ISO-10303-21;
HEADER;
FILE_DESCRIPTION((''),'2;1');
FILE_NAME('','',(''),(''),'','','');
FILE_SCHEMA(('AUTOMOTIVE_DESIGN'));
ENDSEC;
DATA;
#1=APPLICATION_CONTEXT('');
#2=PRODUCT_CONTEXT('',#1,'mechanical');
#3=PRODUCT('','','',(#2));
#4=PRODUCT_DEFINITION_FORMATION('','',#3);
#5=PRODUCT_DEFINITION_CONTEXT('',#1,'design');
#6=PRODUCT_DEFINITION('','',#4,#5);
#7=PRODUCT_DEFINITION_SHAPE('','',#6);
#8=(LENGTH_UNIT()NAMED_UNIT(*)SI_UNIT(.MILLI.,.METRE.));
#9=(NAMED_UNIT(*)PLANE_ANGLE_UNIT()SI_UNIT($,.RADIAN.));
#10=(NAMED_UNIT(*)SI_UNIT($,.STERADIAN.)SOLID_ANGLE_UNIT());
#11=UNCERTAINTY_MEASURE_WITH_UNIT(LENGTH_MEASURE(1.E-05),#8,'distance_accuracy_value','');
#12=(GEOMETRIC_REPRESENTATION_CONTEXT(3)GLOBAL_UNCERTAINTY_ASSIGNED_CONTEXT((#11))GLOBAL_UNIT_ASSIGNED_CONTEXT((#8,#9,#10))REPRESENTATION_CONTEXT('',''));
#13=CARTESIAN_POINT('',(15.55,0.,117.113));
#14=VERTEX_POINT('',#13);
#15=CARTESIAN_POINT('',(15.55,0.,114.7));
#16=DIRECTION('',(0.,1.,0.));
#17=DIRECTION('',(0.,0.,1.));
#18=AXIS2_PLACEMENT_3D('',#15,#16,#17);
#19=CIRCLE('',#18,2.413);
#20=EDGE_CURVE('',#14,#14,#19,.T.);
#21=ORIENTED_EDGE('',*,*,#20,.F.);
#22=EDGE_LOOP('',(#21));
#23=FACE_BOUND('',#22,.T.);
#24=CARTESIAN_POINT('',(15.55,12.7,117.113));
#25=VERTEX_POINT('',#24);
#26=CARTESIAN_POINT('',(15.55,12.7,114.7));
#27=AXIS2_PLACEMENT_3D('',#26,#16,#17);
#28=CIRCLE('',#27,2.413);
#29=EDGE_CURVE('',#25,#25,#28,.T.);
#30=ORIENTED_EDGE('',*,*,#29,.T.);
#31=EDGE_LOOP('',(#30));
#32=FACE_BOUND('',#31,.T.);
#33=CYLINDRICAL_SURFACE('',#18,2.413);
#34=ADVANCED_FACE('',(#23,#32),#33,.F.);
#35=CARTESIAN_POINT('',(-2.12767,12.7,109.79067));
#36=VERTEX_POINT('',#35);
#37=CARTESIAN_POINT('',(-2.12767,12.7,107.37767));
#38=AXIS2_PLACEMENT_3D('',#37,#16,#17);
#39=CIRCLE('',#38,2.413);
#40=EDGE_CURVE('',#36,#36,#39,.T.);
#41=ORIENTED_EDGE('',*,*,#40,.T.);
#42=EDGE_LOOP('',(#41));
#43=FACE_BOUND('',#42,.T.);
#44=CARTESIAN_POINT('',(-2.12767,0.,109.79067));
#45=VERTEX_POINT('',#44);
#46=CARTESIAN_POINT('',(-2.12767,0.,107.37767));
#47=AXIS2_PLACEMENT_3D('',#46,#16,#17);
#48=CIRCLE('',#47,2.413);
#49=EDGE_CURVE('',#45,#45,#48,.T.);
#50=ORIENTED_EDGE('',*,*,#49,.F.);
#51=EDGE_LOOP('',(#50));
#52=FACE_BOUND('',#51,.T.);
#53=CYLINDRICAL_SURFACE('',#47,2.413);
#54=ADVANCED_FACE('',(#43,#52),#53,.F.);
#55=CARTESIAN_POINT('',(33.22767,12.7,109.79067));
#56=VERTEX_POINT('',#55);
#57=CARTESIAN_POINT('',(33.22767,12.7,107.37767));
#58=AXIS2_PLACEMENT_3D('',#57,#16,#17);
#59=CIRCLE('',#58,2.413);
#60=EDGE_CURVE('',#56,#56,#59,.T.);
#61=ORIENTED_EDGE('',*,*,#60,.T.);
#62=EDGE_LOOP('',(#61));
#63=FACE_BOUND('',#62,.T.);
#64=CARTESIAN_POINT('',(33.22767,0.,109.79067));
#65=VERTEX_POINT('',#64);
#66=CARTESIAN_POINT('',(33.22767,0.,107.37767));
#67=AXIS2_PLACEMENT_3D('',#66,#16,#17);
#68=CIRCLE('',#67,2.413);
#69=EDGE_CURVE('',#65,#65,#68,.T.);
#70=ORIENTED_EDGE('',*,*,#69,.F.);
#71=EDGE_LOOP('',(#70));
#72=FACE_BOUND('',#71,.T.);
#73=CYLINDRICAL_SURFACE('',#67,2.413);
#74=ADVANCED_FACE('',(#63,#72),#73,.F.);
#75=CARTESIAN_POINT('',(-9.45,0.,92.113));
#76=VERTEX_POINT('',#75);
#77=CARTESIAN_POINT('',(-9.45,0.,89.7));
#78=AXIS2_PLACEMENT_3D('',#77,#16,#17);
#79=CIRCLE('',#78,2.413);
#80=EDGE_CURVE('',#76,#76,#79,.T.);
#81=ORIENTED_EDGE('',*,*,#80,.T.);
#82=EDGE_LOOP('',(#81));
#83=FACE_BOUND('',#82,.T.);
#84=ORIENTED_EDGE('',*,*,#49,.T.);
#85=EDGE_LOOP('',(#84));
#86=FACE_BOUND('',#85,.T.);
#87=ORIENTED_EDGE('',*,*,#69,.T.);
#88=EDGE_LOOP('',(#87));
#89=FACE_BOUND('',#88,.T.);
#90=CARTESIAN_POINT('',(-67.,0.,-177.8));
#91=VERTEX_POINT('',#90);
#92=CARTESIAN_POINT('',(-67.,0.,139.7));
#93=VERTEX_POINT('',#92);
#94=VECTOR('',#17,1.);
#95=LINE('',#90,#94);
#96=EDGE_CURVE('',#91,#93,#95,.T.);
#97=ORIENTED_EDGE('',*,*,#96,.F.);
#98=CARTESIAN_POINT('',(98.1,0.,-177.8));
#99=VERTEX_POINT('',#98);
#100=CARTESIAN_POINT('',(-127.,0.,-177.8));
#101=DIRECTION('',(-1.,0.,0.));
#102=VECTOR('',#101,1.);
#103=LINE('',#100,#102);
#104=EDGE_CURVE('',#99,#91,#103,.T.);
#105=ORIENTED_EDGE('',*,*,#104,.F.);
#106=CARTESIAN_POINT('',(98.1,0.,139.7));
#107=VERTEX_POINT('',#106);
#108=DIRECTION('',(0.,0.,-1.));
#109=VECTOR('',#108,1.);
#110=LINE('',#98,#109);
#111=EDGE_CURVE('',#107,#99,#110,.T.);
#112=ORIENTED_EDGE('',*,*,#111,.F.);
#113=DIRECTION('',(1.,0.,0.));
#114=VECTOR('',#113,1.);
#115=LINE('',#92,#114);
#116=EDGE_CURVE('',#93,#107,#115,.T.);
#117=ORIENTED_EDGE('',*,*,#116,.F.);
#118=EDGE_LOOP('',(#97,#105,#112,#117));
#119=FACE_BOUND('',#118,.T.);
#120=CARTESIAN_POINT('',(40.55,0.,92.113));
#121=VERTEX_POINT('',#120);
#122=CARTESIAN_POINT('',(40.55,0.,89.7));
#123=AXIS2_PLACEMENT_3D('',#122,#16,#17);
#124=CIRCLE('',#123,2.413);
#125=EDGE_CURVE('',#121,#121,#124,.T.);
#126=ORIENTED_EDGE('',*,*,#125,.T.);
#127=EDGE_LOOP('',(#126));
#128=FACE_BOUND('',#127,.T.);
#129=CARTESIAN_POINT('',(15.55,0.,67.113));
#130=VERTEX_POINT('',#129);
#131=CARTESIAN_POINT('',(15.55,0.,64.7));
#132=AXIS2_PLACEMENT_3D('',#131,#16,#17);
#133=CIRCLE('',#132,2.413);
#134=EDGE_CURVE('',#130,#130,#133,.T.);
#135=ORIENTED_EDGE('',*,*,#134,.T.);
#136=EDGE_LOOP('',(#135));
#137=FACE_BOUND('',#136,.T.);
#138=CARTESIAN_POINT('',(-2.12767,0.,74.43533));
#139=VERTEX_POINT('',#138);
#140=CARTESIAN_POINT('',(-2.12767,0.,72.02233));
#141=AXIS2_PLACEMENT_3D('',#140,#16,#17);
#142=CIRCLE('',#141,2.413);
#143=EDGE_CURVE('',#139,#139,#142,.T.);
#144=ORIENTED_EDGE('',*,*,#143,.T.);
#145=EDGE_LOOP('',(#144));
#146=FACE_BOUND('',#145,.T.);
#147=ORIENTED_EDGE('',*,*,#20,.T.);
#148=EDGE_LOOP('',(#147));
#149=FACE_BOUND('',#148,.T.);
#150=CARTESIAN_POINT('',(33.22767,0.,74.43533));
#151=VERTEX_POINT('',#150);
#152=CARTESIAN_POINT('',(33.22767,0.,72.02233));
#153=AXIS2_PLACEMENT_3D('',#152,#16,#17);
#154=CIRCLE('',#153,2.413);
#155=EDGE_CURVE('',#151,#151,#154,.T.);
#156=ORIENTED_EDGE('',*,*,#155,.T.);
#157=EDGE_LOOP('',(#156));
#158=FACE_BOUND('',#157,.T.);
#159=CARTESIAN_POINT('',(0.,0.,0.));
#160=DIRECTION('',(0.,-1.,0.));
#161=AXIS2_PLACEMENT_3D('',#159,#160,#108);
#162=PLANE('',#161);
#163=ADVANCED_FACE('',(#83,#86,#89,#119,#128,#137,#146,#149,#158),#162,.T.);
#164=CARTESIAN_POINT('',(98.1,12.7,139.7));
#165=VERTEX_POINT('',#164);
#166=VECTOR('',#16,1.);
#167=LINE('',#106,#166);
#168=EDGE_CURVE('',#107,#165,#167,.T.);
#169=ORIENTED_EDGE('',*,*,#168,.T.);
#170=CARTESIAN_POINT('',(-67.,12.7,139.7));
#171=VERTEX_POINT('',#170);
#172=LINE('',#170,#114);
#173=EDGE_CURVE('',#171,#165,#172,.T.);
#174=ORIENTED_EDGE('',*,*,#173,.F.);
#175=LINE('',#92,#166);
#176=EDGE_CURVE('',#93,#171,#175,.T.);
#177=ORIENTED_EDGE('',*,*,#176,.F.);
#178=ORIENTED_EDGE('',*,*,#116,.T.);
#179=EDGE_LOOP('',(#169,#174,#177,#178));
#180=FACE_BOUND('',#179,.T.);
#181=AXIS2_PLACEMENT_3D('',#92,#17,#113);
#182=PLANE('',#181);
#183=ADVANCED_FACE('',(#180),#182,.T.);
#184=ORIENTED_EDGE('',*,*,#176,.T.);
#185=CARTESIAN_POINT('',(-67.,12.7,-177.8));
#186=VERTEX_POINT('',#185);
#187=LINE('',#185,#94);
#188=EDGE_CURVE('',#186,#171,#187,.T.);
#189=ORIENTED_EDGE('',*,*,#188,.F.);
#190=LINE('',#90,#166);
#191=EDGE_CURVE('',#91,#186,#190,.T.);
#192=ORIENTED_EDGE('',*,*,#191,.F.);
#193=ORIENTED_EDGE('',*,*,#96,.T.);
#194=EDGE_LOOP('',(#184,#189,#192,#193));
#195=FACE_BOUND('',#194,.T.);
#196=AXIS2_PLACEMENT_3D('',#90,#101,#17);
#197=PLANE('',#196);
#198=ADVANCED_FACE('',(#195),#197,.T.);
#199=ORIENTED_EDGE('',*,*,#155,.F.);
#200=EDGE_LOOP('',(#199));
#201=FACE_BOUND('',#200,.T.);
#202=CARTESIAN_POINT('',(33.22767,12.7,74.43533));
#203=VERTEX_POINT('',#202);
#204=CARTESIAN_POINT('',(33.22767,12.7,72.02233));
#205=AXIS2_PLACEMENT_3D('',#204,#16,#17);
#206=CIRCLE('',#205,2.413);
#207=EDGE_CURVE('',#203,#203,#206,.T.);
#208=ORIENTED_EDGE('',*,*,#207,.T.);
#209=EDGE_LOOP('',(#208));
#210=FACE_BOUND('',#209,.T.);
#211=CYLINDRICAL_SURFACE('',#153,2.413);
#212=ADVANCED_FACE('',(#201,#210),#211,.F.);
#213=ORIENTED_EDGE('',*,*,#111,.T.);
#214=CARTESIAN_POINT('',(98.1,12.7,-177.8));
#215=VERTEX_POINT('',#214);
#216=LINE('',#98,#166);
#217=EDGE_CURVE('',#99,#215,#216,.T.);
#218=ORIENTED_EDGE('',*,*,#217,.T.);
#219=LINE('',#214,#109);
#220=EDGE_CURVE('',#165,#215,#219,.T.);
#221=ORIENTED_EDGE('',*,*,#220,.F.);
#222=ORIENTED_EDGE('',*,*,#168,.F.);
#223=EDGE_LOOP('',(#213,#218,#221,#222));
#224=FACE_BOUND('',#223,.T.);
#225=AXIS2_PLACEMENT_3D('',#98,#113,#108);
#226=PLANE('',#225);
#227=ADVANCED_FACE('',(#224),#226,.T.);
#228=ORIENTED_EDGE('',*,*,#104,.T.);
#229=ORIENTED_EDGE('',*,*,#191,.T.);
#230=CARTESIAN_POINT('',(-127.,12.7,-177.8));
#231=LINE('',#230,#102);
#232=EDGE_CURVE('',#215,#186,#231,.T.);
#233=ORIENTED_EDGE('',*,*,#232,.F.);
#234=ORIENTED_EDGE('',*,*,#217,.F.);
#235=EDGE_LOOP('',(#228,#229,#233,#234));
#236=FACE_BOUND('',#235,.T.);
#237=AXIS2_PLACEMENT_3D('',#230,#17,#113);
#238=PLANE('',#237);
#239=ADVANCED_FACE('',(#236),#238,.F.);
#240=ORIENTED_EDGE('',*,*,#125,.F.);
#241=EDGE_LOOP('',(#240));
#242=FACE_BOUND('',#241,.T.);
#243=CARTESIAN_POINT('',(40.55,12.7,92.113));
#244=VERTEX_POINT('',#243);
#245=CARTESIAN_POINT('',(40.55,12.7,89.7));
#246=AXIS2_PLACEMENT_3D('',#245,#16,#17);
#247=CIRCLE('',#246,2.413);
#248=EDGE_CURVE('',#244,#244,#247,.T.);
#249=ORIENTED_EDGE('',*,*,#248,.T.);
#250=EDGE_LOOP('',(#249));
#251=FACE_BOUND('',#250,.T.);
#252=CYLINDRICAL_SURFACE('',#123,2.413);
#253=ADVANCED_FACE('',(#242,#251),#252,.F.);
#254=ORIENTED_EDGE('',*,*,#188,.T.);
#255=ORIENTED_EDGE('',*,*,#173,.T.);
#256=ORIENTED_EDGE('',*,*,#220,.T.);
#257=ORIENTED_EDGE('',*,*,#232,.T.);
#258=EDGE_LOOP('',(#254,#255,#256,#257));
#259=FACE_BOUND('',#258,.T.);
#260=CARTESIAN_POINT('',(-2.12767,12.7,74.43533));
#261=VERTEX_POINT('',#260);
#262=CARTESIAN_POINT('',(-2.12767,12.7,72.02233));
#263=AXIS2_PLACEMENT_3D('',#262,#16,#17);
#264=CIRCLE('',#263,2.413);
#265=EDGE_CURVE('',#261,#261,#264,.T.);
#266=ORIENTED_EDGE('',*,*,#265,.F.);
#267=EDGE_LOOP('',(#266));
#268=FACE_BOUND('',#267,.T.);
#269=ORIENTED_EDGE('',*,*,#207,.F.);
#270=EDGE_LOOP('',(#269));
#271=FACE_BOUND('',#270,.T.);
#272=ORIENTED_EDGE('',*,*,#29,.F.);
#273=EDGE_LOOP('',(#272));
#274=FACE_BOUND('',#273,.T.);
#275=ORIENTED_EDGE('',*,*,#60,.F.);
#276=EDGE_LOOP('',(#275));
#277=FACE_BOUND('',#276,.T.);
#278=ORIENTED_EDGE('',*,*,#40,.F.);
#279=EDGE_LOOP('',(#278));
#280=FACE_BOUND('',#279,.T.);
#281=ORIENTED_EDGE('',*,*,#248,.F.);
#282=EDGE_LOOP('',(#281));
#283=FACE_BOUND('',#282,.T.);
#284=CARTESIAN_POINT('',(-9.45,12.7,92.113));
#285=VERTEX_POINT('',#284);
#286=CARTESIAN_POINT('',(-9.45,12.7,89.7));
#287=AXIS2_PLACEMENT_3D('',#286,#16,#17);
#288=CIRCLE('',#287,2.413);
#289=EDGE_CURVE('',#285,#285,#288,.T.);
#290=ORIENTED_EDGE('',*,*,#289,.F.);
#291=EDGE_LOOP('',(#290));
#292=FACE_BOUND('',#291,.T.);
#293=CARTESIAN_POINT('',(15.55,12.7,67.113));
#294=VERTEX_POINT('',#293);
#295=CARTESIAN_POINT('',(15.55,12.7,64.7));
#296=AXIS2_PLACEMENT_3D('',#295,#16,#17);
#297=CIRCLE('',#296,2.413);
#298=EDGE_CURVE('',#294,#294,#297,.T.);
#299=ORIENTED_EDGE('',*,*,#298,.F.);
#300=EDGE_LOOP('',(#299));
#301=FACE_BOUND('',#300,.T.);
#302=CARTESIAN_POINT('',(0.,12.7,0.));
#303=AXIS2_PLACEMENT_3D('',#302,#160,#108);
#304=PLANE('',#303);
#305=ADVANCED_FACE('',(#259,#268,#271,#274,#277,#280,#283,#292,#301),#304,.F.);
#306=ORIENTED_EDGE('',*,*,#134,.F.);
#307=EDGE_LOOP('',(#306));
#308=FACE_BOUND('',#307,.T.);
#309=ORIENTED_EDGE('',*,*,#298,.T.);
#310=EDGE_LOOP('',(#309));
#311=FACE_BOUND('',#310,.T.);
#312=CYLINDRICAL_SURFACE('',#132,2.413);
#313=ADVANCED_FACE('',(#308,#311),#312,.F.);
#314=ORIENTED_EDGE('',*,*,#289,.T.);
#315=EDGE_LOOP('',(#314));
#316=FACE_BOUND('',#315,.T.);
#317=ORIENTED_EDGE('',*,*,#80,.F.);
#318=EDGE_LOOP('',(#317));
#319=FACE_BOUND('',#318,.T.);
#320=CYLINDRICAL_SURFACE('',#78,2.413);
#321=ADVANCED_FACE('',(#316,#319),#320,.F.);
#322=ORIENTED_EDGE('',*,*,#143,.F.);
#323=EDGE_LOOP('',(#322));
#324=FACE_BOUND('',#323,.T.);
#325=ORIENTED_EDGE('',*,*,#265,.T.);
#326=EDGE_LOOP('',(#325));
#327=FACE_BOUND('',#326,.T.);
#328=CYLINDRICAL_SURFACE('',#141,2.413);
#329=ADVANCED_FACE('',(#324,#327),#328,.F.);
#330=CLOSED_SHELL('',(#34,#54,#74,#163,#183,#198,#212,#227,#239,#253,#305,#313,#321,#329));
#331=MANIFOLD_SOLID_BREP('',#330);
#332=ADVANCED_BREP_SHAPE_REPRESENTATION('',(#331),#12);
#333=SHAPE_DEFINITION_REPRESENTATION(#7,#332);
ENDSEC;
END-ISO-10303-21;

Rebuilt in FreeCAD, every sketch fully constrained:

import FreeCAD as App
import Part
import Sketcher
from FreeCAD import Vector
Q = App.Units.Quantity


def add_polygon(sketch, points):
    """Adds a closed chain of lines whose ends are joined by coincident constraints."""
    first, n = sketch.GeometryCount, len(points)
    for a, b in zip(points, points[1:] + points[:1]):
        sketch.addGeometry(Part.LineSegment(App.Vector(*a, 0), App.Vector(*b, 0)), False)
    for i in range(n):
        sketch.addConstraint(Sketcher.Constraint("Coincident", first + i, 2, first + (i + 1) % n, 1))

doc = App.newDocument("Part")
params = doc.addObject("Spreadsheet::Sheet", "Params")
for row, (alias, value) in enumerate([
    ("sketch1_width", "10 in"),
    ("sketch1_height", "14 in"),
    ("pad1_length", "0.5 in"),
    ("sketch2_width", "6.5 in"),
    ("sketch2_height", "12.5 in"),
    ("sketch3_diameter", "0.19 in"),
], start=1):
    params.set(f"A{row}", alias)
    params.set(f"B{row}", "=" + value)
    params.setAlias(f"B{row}", alias)

body = doc.addObject("PartDesign::Body", "Body")

# Sketch on XZ plane
sketch1 = body.newObject("Sketcher::SketchObject", "Sketch")
sketch1.AttachmentSupport = (doc.getObject("XZ_Plane"), [""])
sketch1.MapMode = "FlatFace"
add_polygon(sketch1, [(-127, -177.8), (-127, 177.8), (127, 177.8), (127, -177.8)])  # lines 0-3
sketch1.addConstraint([
    Sketcher.Constraint("Vertical", 0),
    Sketcher.Constraint("Horizontal", 1),
    Sketcher.Constraint("Vertical", 2),
    Sketcher.Constraint("Horizontal", 3),
    Sketcher.Constraint("Symmetric", 0, 2, 2, 2, -1, 1),
    Sketcher.Constraint("DistanceX", 1, 1, 1, 2, Q("10 in")),
    Sketcher.Constraint("DistanceY", 0, 1, 0, 2, Q("14 in")),
])
sketch1.setExpression("Constraints[9]", "Params.sketch1_width")
sketch1.setExpression("Constraints[10]", "Params.sketch1_height")
pad1 = body.newObject("PartDesign::Pad", "Pad")
pad1.Profile = sketch1
pad1.setExpression("Length", "Params.pad1_length")
pad1.Reversed = True

# Sketch on XZ plane
sketch2 = body.newObject("Sketcher::SketchObject", "Sketch001")
sketch2.AttachmentSupport = (doc.getObject("XZ_Plane"), [""])
sketch2.MapMode = "FlatFace"
sketch2.AttachmentOffset = App.Placement(Vector(0, 0, -0.5 * 25.4), App.Rotation())
add_polygon(sketch2, [(-171.718, -222.518), (-171.718, 222.518), (171.718, 222.518), (171.718, -222.518)])  # lines 0-3
add_polygon(sketch2, [(98.1, 139.7), (-67, 139.7), (-67, -177.8), (98.1, -177.8)])  # lines 4-7
sketch2.addConstraint([
    Sketcher.Constraint("Vertical", 0),
    Sketcher.Constraint("Horizontal", 1),
    Sketcher.Constraint("Vertical", 2),
    Sketcher.Constraint("Horizontal", 3),
    Sketcher.Constraint("Horizontal", 4),
    Sketcher.Constraint("Vertical", 5),
    Sketcher.Constraint("Horizontal", 6),
    Sketcher.Constraint("Vertical", 7),
    Sketcher.Constraint("Symmetric", 0, 2, 2, 2, -1, 1),
    Sketcher.Constraint("DistanceX", 4, 2, 4, 1, Q("6.5 in")),
    Sketcher.Constraint("DistanceY", 5, 2, 5, 1, Q("12.5 in")),
    Sketcher.Constraint("DistanceY", 5, 2, -1, 1, Q("7 in")),
    Sketcher.Constraint("DistanceX", 1, 1, 1, 2, 343.436),
    Sketcher.Constraint("DistanceY", 0, 1, 0, 2, 445.036),
    Sketcher.Constraint("DistanceX", 4, 2, -1, 1, 67.0),
])
sketch2.setExpression("Constraints[17]", "Params.sketch2_width")
sketch2.setExpression("Constraints[18]", "Params.sketch2_height")
pocket1 = body.newObject("PartDesign::Pocket", "Pocket")
pocket1.Profile = sketch2
pocket1.Type = "ThroughAll"
pocket1.Reversed = True

# Sketch on XZ plane
sketch3 = body.newObject("Sketcher::SketchObject", "Sketch002")
sketch3.AttachmentSupport = (doc.getObject("XZ_Plane"), [""])
sketch3.MapMode = "FlatFace"
sketch3.AttachmentOffset = App.Placement(Vector(0, 0, -0.5 * 25.4), App.Rotation())
sketch3.addGeometry([
    Part.Circle(Vector(33.22767, 107.37767, 0), Vector(0, 0, 1), 2.413),  # 0
    Part.Circle(Vector(40.55, 89.7, 0), Vector(0, 0, 1), 2.413),  # 1
    Part.Circle(Vector(33.22767, 72.02233, 0), Vector(0, 0, 1), 2.413),  # 2
    Part.Circle(Vector(15.55, 64.7, 0), Vector(0, 0, 1), 2.413),  # 3
    Part.Circle(Vector(-2.12767, 72.02233, 0), Vector(0, 0, 1), 2.413),  # 4
    Part.Circle(Vector(-9.45, 89.7, 0), Vector(0, 0, 1), 2.413),  # 5
    Part.Circle(Vector(-2.12767, 107.37767, 0), Vector(0, 0, 1), 2.413),  # 6
    Part.Circle(Vector(15.55, 114.7, 0), Vector(0, 0, 1), 2.413),  # 7
], False)
sketch3.addConstraint([
    Sketcher.Constraint("Equal", 0, 1),
    Sketcher.Constraint("Equal", 1, 2),
    Sketcher.Constraint("Equal", 2, 3),
    Sketcher.Constraint("Equal", 3, 4),
    Sketcher.Constraint("Equal", 4, 5),
    Sketcher.Constraint("Equal", 5, 6),
    Sketcher.Constraint("Equal", 6, 7),
    Sketcher.Constraint("Horizontal", 2, 3, 4, 3),
    Sketcher.Constraint("Horizontal", 1, 3, 5, 3),
    Sketcher.Constraint("Horizontal", 0, 3, 6, 3),
    Sketcher.Constraint("Vertical", 0, 3, 2, 3),
    Sketcher.Constraint("Vertical", 4, 3, 6, 3),
    Sketcher.Constraint("Vertical", 3, 3, 7, 3),
    Sketcher.Constraint("Diameter", 0, Q("0.19 in")),
    Sketcher.Constraint("DistanceX", -1, 1, 1, 3, 40.55),
    Sketcher.Constraint("DistanceY", -1, 1, 1, 3, 89.7),
    Sketcher.Constraint("DistanceX", -1, 1, 3, 3, 15.55),
    Sketcher.Constraint("DistanceY", -1, 1, 3, 3, 64.7),
    Sketcher.Constraint("DistanceX", 5, 3, -1, 1, 9.45),
    Sketcher.Constraint("DistanceY", -1, 1, 7, 3, 114.7),
    Sketcher.Constraint("DistanceX", -1, 1, 0, 3, 33.22767),
    Sketcher.Constraint("DistanceY", -1, 1, 0, 3, 107.37767),
    Sketcher.Constraint("DistanceY", -1, 1, 2, 3, 72.02233),
    Sketcher.Constraint("DistanceX", 4, 3, -1, 1, 2.12767),
])
sketch3.setExpression("Constraints[13]", "Params.sketch3_diameter")
pocket2 = body.newObject("PartDesign::Pocket", "Pocket001")
pocket2.Profile = sketch3
pocket2.Type = "ThroughAll"
pocket2.Reversed = True

doc.recompute()
